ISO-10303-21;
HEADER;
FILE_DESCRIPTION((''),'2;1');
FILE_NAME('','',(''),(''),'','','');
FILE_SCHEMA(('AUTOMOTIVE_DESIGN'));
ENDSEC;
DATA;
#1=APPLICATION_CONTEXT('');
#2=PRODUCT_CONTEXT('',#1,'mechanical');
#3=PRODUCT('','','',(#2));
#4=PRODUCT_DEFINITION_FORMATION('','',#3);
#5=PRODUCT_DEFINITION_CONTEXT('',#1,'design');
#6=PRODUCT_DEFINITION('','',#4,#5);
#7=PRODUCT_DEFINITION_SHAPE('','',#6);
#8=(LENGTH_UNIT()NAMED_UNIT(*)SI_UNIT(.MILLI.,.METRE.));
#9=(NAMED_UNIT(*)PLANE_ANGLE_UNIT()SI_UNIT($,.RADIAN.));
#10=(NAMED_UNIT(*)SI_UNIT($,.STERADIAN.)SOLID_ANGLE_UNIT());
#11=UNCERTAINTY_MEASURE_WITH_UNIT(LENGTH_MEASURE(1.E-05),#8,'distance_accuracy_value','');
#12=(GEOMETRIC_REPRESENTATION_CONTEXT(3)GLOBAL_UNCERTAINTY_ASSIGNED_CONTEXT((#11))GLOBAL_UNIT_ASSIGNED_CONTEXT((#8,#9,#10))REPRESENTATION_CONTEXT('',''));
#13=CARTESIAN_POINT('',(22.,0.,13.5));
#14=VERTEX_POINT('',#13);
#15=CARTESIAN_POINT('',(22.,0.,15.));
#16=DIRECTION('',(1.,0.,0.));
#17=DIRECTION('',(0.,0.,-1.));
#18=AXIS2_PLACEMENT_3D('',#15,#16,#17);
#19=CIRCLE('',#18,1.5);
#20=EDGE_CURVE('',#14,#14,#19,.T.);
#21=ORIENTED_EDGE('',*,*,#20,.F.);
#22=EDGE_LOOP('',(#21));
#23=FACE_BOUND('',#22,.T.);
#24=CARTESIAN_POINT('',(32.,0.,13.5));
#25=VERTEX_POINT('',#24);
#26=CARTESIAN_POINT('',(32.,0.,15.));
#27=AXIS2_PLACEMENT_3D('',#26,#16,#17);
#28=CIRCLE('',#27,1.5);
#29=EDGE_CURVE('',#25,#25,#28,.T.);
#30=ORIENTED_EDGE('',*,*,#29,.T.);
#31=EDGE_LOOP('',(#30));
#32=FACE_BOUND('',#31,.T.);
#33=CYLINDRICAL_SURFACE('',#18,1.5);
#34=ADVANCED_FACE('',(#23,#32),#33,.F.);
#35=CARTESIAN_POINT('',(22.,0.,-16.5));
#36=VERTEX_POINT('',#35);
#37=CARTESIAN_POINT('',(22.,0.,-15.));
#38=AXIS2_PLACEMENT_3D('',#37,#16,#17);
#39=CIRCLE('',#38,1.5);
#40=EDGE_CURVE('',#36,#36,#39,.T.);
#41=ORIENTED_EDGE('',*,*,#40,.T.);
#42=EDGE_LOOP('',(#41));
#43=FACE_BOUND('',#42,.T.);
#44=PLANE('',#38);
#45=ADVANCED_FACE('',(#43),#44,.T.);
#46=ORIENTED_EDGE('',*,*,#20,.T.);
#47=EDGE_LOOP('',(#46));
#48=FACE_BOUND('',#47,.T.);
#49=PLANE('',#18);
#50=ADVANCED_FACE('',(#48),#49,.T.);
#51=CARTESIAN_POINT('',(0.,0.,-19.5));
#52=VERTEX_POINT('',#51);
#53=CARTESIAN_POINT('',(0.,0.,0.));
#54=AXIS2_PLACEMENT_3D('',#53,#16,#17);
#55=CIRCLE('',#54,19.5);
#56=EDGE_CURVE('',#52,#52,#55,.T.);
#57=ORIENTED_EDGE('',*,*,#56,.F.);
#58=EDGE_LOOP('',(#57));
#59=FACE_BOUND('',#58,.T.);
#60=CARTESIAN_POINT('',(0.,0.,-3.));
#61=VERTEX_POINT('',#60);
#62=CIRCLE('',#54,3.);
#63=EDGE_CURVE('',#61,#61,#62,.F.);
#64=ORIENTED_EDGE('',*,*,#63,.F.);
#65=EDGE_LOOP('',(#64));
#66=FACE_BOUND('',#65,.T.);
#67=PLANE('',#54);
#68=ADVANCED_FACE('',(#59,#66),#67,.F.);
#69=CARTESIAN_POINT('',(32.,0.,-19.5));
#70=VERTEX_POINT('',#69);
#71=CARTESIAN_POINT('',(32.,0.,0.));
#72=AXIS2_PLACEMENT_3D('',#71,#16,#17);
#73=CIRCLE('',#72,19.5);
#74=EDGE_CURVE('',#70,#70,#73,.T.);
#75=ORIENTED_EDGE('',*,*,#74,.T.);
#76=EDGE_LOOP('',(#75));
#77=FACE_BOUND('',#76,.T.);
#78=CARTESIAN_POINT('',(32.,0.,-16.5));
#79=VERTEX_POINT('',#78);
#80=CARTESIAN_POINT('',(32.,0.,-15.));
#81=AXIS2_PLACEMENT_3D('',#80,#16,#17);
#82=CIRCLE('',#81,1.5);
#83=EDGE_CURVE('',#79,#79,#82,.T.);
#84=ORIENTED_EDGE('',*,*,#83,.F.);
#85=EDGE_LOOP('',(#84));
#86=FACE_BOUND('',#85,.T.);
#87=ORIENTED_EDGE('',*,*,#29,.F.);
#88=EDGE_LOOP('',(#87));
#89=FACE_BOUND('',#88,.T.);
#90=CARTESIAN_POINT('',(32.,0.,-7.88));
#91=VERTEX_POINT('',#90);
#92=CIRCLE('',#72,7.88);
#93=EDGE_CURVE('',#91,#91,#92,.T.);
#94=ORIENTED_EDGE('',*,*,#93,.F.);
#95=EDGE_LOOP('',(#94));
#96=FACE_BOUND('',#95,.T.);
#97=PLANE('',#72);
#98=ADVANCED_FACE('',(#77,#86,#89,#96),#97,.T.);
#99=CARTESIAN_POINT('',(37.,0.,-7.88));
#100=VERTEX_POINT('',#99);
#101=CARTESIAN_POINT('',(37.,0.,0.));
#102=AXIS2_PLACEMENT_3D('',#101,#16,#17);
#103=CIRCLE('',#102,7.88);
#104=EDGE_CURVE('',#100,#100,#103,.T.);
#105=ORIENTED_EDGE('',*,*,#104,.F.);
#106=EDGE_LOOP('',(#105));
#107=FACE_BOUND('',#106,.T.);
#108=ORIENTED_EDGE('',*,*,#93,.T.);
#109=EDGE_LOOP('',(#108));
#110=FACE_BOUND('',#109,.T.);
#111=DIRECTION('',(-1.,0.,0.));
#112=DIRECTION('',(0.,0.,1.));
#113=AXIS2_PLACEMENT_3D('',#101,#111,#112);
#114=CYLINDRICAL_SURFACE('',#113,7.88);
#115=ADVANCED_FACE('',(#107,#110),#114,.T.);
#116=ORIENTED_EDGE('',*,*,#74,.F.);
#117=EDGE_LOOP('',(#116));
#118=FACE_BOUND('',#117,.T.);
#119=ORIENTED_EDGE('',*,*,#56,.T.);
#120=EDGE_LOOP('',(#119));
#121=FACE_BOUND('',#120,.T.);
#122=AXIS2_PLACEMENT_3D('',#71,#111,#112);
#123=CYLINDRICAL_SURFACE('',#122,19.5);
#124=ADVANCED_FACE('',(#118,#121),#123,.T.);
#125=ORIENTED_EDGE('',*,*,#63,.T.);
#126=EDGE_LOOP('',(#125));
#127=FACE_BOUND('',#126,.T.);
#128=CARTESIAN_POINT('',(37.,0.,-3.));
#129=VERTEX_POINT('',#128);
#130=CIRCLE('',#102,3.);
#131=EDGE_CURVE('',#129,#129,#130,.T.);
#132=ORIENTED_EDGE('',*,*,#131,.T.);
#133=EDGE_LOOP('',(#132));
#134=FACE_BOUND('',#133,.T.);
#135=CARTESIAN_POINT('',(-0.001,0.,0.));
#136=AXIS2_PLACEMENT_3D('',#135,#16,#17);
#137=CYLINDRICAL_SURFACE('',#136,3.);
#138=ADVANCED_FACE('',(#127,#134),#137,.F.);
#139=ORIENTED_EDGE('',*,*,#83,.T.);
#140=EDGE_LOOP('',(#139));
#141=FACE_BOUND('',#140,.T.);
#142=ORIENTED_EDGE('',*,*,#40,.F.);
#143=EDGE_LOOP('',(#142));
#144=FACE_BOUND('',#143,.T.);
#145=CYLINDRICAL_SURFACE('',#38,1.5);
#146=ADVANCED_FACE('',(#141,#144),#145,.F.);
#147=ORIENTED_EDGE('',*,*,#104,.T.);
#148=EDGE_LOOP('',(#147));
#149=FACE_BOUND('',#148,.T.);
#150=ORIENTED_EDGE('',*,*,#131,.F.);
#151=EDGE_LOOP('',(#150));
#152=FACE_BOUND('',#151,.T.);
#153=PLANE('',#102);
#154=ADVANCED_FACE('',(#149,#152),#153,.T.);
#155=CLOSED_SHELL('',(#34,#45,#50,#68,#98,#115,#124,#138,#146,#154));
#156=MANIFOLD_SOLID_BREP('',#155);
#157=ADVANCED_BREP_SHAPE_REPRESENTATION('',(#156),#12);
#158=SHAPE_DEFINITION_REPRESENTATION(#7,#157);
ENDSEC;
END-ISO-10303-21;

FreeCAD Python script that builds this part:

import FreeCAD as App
import Part
import Sketcher
from FreeCAD import Vector

doc = App.newDocument("Part")
body = doc.addObject("PartDesign::Body", "Body")

# Sketch on YZ plane
sketch1 = doc.addObject("Sketcher::SketchObject", "Sketch")
body.addObject(sketch1)
sketch1.AttachmentSupport = (doc.YZ_Plane, [""])
sketch1.MapMode = "FlatFace"
sketch1.addGeometry(Part.Circle(Vector(0, 0, 0), Vector(0, 0, 1), 20), False)
sketch1.addConstraint([
    Sketcher.Constraint("Coincident", 0, 3, -1, 1),
    Sketcher.Constraint("Diameter", 0, 39.0),
])
pad1 = doc.addObject("PartDesign::Pad", "Pad")
body.addObject(pad1)
pad1.Profile = sketch1
pad1.Length = 32

# Sketch on YZ plane
sketch2 = doc.addObject("Sketcher::SketchObject", "Sketch001")
body.addObject(sketch2)
sketch2.AttachmentSupport = (doc.YZ_Plane, [""])
sketch2.MapMode = "FlatFace"
sketch2.AttachmentOffset = App.Placement(Vector(0, 0, 32), App.Rotation())
sketch2.addGeometry(Part.Circle(Vector(0, 0, 0), Vector(0, 0, 1), 8), False)
sketch2.addConstraint([
    Sketcher.Constraint("Coincident", 0, 3, -1, 1),
    Sketcher.Constraint("Diameter", 0, 15.76),
])
pad2 = doc.addObject("PartDesign::Pad", "Pad001")
body.addObject(pad2)
pad2.Profile = sketch2
pad2.Length = 5

# Sketch on YZ plane
sketch3 = doc.addObject("Sketcher::SketchObject", "Sketch002")
body.addObject(sketch3)
sketch3.AttachmentSupport = (doc.YZ_Plane, [""])
sketch3.MapMode = "FlatFace"
sketch3.AttachmentOffset = App.Placement(Vector(0, 0, 37), App.Rotation())
sketch3.addGeometry(Part.Circle(Vector(0, 0, 0), Vector(0, 0, 1), 3), False)
sketch3.addConstraint([
    Sketcher.Constraint("Coincident", 0, 3, -1, 1),
    Sketcher.Constraint("Diameter", 0, 6.0),
])
pocket1 = doc.addObject("PartDesign::Pocket", "Pocket")
body.addObject(pocket1)
pocket1.Profile = sketch3
pocket1.Type = "UpToFirst"

# Sketch on YZ plane
sketch4 = doc.addObject("Sketcher::SketchObject", "Sketch003")
body.addObject(sketch4)
sketch4.AttachmentSupport = (doc.YZ_Plane, [""])
sketch4.MapMode = "FlatFace"
sketch4.AttachmentOffset = App.Placement(Vector(0, 0, 32), App.Rotation())
sketch4.addGeometry([
    Part.Circle(Vector(0, -15, 0), Vector(0, 0, 1), 1.5),
    Part.Circle(Vector(0, 15, 0), Vector(0, 0, 1), 1.5),
], False)
sketch4.addConstraint([
    Sketcher.Constraint("Equal", 0, 1),
    Sketcher.Constraint("Symmetric", 0, 3, 1, 3, -1, 1),
    Sketcher.Constraint("PointOnObject", 0, 3, -2),
    Sketcher.Constraint("Diameter", 0, 3.0),
    Sketcher.Constraint("DistanceY", 0, 3, -1, 1, 15.0),
])
pocket2 = doc.addObject("PartDesign::Pocket", "Pocket001")
body.addObject(pocket2)
pocket2.Profile = sketch4
pocket2.Length = 10

doc.recompute()
